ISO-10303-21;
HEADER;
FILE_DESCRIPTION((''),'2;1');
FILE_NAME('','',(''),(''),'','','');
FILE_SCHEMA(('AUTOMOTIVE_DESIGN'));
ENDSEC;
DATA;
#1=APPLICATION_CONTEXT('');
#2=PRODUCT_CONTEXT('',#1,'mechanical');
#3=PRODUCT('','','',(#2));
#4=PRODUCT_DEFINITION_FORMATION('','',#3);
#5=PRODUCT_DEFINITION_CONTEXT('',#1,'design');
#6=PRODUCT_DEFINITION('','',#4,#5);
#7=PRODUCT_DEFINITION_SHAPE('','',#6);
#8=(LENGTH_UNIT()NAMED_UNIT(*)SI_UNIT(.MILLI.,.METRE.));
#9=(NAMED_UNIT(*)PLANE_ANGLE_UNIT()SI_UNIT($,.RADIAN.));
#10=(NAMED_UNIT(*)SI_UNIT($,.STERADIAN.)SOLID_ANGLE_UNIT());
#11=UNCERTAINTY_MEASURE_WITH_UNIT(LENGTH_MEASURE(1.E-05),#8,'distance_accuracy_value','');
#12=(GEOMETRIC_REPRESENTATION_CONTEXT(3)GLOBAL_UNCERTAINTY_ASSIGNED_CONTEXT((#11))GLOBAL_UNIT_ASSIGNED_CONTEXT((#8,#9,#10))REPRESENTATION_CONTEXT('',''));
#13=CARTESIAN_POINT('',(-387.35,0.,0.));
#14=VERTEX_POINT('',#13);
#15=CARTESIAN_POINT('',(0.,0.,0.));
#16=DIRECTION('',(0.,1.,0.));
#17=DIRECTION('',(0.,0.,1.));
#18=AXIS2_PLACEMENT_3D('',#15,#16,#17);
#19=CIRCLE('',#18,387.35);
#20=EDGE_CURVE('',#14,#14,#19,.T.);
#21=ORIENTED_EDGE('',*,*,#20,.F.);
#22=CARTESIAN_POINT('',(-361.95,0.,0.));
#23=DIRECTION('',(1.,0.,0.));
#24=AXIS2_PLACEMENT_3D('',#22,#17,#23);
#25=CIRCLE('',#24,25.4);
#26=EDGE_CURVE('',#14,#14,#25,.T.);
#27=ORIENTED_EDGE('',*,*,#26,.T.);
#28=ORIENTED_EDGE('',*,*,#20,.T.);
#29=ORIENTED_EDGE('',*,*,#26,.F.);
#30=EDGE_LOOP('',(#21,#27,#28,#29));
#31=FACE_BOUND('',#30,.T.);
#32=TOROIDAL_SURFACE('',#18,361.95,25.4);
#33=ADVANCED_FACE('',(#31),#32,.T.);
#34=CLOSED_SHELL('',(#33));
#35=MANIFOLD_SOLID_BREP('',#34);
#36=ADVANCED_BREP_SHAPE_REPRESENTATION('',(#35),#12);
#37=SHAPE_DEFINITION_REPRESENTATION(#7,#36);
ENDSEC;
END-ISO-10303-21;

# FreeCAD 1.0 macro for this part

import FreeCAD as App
import Part
import Sketcher
Q = App.Units.Quantity

doc = App.newDocument("Part")
params = doc.addObject("Spreadsheet::Sheet", "Params")
for row, (alias, value) in enumerate([
    ("sketch1_diameter", "2 in"),
    ("sketch2_diameter", "28.5 in"),
], start=1):
    params.set(f"A{row}", alias)
    params.set(f"B{row}", "=" + value)
    params.setAlias(f"B{row}", alias)

body = doc.addObject("PartDesign::Body", "Body")

sketch1 = body.newObject("Sketcher::SketchObject", "Sketch")
sketch1.AttachmentSupport = (doc.getObject("XY_Plane"), [""])
sketch1.MapMode = "FlatFace"
sketch1.addGeometry(Part.Circle(App.Vector(-362, 0, 0), App.Vector(0, 0, 1), 25), False)
sketch1.addConstraint([
    Sketcher.Constraint("PointOnObject", 0, 3, -1),
    Sketcher.Constraint("Diameter", 0, Q("2 in")),
    Sketcher.Constraint("DistanceX", 0, 3, -1, 1, Q("14.25 in")),
])
sketch1.setExpression("Constraints[1]", "Params.sketch1_diameter")

sketch2 = body.newObject("Sketcher::SketchObject", "Sketch001")
sketch2.AttachmentSupport = (doc.getObject("XZ_Plane"), [""])
sketch2.MapMode = "FlatFace"
sketch2.addGeometry(Part.Circle(App.Vector(0, 0, 0), App.Vector(0, 0, 1), 362), False)
sketch2.addConstraint([
    Sketcher.Constraint("Coincident", 0, 3, -1, 1),
    Sketcher.Constraint("Diameter", 0, Q("28.5 in")),
])
sketch2.setExpression("Constraints[1]", "Params.sketch2_diameter")
doc.recompute()

additivepipe = body.newObject("PartDesign::AdditivePipe", "AdditivePipe")
additivepipe.Profile = sketch1
additivepipe.Spine = (sketch2, ["Edge1"])

doc.recompute()
